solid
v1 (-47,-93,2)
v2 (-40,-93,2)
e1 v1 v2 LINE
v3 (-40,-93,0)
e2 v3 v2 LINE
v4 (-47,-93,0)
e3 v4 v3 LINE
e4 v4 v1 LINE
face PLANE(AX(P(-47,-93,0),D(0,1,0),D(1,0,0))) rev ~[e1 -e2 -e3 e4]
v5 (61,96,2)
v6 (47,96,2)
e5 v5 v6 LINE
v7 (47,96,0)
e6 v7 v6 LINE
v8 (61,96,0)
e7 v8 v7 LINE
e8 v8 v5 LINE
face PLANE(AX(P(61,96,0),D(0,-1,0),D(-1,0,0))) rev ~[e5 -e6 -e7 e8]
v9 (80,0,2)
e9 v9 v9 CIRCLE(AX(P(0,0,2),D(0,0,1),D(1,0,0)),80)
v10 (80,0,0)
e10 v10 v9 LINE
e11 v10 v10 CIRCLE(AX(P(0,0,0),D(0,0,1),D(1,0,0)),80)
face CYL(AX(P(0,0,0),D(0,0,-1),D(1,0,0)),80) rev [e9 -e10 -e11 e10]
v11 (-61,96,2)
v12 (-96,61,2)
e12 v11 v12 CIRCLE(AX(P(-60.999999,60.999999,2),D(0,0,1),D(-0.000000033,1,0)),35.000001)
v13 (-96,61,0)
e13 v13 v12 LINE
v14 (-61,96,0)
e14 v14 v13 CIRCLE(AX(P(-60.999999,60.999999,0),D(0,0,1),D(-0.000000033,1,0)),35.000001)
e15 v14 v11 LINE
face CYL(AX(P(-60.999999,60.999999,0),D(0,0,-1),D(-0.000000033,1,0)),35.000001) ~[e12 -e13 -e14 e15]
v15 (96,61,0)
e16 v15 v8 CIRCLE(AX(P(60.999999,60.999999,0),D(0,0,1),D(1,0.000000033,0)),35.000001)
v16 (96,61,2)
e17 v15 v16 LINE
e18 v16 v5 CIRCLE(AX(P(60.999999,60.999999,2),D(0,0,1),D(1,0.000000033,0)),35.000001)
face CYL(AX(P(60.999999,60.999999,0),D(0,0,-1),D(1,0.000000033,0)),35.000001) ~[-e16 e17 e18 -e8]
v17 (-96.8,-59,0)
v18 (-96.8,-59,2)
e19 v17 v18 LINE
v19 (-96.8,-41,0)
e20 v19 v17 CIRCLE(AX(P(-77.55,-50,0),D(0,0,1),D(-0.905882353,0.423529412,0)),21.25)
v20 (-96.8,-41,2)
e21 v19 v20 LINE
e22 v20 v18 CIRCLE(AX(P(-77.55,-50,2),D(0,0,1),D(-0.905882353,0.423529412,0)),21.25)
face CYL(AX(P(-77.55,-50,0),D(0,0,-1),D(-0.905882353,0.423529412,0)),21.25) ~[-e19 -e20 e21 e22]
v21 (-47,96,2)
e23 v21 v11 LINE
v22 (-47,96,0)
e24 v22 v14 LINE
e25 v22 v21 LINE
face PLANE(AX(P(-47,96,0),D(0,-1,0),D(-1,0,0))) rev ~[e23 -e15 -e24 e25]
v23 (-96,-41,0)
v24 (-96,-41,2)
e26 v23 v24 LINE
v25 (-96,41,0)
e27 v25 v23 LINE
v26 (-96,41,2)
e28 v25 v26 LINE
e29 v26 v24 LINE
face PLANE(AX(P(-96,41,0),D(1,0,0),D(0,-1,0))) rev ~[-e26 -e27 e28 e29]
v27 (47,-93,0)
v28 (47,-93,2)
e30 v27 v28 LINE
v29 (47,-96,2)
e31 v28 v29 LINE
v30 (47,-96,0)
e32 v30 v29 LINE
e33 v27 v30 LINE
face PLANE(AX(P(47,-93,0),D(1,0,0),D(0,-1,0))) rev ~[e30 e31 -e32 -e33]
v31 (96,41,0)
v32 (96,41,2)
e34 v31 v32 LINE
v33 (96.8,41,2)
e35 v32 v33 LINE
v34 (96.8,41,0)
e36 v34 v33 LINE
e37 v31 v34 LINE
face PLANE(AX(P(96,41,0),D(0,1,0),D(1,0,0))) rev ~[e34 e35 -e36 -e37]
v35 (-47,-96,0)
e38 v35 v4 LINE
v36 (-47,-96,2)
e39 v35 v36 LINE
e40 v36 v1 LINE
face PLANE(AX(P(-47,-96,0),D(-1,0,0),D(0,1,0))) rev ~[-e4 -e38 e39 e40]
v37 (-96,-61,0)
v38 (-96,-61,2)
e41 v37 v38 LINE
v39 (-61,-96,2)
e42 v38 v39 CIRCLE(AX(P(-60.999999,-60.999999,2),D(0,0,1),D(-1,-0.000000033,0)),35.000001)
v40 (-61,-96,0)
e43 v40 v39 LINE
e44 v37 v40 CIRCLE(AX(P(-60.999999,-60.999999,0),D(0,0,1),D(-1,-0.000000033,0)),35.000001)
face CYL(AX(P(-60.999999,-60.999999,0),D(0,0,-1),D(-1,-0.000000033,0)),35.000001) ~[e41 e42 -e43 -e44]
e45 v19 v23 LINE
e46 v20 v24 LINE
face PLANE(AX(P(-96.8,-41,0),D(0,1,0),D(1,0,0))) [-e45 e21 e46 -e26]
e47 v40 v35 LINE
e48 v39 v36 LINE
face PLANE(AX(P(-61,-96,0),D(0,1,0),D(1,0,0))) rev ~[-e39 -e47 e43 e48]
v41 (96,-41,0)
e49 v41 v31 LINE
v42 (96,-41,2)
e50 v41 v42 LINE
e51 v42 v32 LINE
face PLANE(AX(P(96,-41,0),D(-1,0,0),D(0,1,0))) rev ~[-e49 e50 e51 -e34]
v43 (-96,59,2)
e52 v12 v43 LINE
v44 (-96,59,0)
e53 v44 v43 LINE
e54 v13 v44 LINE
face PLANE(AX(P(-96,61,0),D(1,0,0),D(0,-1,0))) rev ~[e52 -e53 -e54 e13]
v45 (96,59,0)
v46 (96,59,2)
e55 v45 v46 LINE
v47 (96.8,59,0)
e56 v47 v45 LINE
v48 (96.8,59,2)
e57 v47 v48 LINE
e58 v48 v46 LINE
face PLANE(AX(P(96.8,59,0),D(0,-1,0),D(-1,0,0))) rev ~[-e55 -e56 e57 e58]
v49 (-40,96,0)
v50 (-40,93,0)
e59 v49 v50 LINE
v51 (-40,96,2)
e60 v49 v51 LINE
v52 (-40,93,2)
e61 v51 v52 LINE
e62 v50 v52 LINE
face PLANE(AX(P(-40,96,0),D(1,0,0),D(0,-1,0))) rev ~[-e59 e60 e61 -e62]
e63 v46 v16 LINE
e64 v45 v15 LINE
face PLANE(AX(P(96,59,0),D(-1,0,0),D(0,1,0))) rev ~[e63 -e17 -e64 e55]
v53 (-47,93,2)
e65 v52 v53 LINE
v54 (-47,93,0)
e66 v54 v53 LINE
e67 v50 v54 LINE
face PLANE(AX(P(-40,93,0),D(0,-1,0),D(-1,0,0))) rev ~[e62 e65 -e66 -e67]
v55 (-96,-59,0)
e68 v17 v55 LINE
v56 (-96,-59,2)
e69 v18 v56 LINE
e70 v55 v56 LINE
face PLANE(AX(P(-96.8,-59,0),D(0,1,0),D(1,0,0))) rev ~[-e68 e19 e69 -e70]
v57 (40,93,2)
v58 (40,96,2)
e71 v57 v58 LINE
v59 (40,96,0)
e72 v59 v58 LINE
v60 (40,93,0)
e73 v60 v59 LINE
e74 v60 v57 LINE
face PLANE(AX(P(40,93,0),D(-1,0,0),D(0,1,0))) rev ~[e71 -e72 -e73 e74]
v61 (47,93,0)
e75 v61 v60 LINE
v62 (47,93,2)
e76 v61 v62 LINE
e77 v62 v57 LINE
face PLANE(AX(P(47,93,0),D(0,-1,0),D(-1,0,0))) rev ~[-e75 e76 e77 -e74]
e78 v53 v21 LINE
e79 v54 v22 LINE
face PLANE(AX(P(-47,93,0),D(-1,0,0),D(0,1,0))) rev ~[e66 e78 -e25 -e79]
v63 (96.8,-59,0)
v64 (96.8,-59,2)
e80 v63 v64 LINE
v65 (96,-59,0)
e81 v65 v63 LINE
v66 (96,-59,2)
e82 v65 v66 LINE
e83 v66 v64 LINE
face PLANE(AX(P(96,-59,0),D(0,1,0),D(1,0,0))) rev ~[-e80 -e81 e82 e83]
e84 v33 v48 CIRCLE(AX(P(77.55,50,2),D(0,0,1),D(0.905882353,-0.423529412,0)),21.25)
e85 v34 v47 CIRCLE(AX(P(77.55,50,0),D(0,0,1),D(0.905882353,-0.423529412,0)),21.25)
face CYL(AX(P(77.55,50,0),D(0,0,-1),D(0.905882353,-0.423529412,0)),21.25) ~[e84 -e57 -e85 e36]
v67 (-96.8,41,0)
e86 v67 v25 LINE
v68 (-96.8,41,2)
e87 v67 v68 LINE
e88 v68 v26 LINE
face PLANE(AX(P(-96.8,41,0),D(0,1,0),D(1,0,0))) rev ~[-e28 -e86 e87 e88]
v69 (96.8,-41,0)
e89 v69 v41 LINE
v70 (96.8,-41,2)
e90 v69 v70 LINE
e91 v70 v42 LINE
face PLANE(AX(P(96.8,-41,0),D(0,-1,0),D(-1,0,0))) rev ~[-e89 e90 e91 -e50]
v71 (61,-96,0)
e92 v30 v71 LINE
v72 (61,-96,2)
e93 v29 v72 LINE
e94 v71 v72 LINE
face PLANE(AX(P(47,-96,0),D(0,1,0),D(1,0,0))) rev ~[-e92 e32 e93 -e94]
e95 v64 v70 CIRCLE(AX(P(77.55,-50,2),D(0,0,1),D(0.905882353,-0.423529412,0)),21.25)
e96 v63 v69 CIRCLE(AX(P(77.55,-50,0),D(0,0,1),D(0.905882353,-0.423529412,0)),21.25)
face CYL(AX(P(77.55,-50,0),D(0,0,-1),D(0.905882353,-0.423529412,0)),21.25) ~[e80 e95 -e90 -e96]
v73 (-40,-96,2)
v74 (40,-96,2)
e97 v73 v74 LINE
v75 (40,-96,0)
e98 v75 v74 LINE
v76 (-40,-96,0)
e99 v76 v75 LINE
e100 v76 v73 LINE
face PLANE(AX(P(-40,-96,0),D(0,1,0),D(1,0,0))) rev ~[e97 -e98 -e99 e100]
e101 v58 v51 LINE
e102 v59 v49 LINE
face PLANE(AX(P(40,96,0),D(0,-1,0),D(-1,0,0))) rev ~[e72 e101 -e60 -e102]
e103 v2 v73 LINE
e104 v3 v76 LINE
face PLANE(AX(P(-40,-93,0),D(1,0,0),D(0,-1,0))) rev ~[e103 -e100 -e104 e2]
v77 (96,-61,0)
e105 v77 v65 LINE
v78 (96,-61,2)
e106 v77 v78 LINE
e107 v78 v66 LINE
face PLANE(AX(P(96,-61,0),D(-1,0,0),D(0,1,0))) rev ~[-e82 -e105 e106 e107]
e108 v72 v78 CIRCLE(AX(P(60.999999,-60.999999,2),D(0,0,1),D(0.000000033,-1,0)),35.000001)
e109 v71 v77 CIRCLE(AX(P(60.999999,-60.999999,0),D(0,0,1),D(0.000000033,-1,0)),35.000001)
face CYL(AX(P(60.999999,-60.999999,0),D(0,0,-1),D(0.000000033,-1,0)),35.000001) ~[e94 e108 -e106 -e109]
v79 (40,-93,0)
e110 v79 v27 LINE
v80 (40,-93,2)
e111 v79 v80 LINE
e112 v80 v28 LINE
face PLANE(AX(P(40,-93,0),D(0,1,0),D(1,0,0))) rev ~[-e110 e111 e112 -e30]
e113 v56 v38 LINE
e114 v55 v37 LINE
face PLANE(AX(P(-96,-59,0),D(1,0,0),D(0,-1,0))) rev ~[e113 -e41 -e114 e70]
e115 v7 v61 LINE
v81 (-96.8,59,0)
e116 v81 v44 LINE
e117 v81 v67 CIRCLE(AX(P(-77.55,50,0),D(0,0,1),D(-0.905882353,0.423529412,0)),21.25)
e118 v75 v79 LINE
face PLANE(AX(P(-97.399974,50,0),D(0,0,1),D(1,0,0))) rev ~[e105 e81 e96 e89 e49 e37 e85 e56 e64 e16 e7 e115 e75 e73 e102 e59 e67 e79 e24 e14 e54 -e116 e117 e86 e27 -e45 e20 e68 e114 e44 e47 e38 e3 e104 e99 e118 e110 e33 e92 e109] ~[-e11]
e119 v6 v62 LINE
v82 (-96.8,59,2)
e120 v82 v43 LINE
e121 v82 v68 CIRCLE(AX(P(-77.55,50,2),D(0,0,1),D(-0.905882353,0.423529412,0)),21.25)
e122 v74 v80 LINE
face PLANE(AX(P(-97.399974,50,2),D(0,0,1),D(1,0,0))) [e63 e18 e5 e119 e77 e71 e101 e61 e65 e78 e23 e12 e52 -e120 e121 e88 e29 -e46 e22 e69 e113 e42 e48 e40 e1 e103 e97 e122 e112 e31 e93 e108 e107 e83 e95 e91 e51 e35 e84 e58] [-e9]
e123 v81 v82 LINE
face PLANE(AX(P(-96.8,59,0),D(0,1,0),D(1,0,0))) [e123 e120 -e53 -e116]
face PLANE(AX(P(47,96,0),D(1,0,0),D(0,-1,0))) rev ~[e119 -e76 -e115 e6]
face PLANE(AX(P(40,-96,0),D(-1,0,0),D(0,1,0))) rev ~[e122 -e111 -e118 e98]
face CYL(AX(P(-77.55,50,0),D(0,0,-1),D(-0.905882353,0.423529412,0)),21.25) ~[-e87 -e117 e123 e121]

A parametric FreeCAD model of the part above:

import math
import FreeCAD as App
import Part
import Sketcher

V = App.Vector

doc = App.newDocument("Part")
body = doc.addObject("PartDesign::Body", "Body")

# Sketch on XY plane
sketch1 = doc.addObject("Sketcher::SketchObject", "Sketch")
body.addObject(sketch1)
sketch1.AttachmentSupport = (doc.XY_Plane, [""])
sketch1.MapMode = "FlatFace"
sketch1.addGeometry(Part.ArcOfCircle(Part.Circle(V(-77.5, 50, 0), V(0, 0, 1), 21.2), math.radians(155), math.radians(205)), False)
sketch1.addGeometry(Part.LineSegment(V(-96.8, 41, 0), V(-96, 41, 0)), False)
sketch1.addGeometry(Part.LineSegment(V(-96, 41, 0), V(-96, -41, 0)), False)
sketch1.addGeometry(Part.LineSegment(V(-96, -41, 0), V(-96.8, -41, 0)), False)
sketch1.addGeometry(Part.ArcOfCircle(Part.Circle(V(-77.5, -50, 0), V(0, 0, 1), 21.2), math.radians(155), math.radians(205)), False)
sketch1.addGeometry(Part.LineSegment(V(-96.8, -59, 0), V(-96, -59, 0)), False)
sketch1.addGeometry(Part.LineSegment(V(-96, -59, 0), V(-96, -61, 0)), False)
sketch1.addGeometry(Part.ArcOfCircle(Part.Circle(V(-61, -61, 0), V(0, 0, 1), 35), math.radians(-180), math.radians(-90)), False)
sketch1.addGeometry(Part.LineSegment(V(-61, -96, 0), V(-47, -96, 0)), False)
sketch1.addGeometry(Part.LineSegment(V(-47, -96, 0), V(-47, -93, 0)), False)
sketch1.addGeometry(Part.LineSegment(V(-47, -93, 0), V(-40, -93, 0)), False)
sketch1.addGeometry(Part.LineSegment(V(-40, -93, 0), V(-40, -96, 0)), False)
sketch1.addGeometry(Part.LineSegment(V(-40, -96, 0), V(40, -96, 0)), False)
sketch1.addGeometry(Part.LineSegment(V(40, -96, 0), V(40, -93, 0)), False)
sketch1.addGeometry(Part.LineSegment(V(40, -93, 0), V(47, -93, 0)), False)
sketch1.addGeometry(Part.LineSegment(V(47, -93, 0), V(47, -96, 0)), False)
sketch1.addGeometry(Part.LineSegment(V(47, -96, 0), V(61, -96, 0)), False)
sketch1.addGeometry(Part.ArcOfCircle(Part.Circle(V(61, -61, 0), V(0, 0, 1), 35), math.radians(-90), math.radians(0)), False)
sketch1.addGeometry(Part.LineSegment(V(96, -61, 0), V(96, -59, 0)), False)
sketch1.addGeometry(Part.LineSegment(V(96, -59, 0), V(96.8, -59, 0)), False)
sketch1.addGeometry(Part.ArcOfCircle(Part.Circle(V(77.5, -50, 0), V(0, 0, 1), 21.2), math.radians(-25), math.radians(25)), False)
sketch1.addGeometry(Part.LineSegment(V(96.8, -41, 0), V(96, -41, 0)), False)
sketch1.addGeometry(Part.LineSegment(V(96, -41, 0), V(96, 41, 0)), False)
sketch1.addGeometry(Part.LineSegment(V(96, 41, 0), V(96.8, 41, 0)), False)
sketch1.addGeometry(Part.ArcOfCircle(Part.Circle(V(77.5, 50, 0), V(0, 0, 1), 21.2), math.radians(-25), math.radians(25)), False)
sketch1.addGeometry(Part.LineSegment(V(96.8, 59, 0), V(96, 59, 0)), False)
sketch1.addGeometry(Part.LineSegment(V(96, 59, 0), V(96, 61, 0)), False)
sketch1.addGeometry(Part.ArcOfCircle(Part.Circle(V(61, 61, 0), V(0, 0, 1), 35), math.radians(0), math.radians(90)), False)
sketch1.addGeometry(Part.LineSegment(V(61, 96, 0), V(47, 96, 0)), False)
sketch1.addGeometry(Part.LineSegment(V(47, 96, 0), V(47, 93, 0)), False)
sketch1.addGeometry(Part.LineSegment(V(47, 93, 0), V(40, 93, 0)), False)
sketch1.addGeometry(Part.LineSegment(V(40, 93, 0), V(40, 96, 0)), False)
sketch1.addGeometry(Part.LineSegment(V(40, 96, 0), V(-40, 96, 0)), False)
sketch1.addGeometry(Part.LineSegment(V(-40, 96, 0), V(-40, 93, 0)), False)
sketch1.addGeometry(Part.LineSegment(V(-40, 93, 0), V(-47, 93, 0)), False)
sketch1.addGeometry(Part.LineSegment(V(-47, 93, 0), V(-47, 96, 0)), False)
sketch1.addGeometry(Part.LineSegment(V(-47, 96, 0), V(-61, 96, 0)), False)
sketch1.addGeometry(Part.ArcOfCircle(Part.Circle(V(-61, 61, 0), V(0, 0, 1), 35), math.radians(90), math.radians(180)), False)
sketch1.addGeometry(Part.LineSegment(V(-96, 61, 0), V(-96, 59, 0)), False)
sketch1.addGeometry(Part.LineSegment(V(-96, 59, 0), V(-96.8, 59, 0)), False)
sketch1.addGeometry(Part.Circle(V(0, 0, 0), V(0, 0, 1), 80), False)
sketch1.addConstraint(Sketcher.Constraint("Coincident", 0, 2, 1, 1))
sketch1.addConstraint(Sketcher.Constraint("Coincident", 1, 2, 2, 1))
sketch1.addConstraint(Sketcher.Constraint("Coincident", 2, 2, 3, 1))
sketch1.addConstraint(Sketcher.Constraint("Coincident", 3, 2, 4, 1))
sketch1.addConstraint(Sketcher.Constraint("Coincident", 4, 2, 5, 1))
sketch1.addConstraint(Sketcher.Constraint("Coincident", 5, 2, 6, 1))
sketch1.addConstraint(Sketcher.Constraint("Tangent", 6, 2, 7, 1))
sketch1.addConstraint(Sketcher.Constraint("Tangent", 7, 2, 8, 1))
sketch1.addConstraint(Sketcher.Constraint("Coincident", 8, 2, 9, 1))
sketch1.addConstraint(Sketcher.Constraint("Coincident", 9, 2, 10, 1))
sketch1.addConstraint(Sketcher.Constraint("Coincident", 10, 2, 11, 1))
sketch1.addConstraint(Sketcher.Constraint("Coincident", 11, 2, 12, 1))
sketch1.addConstraint(Sketcher.Constraint("Coincident", 12, 2, 13, 1))
sketch1.addConstraint(Sketcher.Constraint("Coincident", 13, 2, 14, 1))
sketch1.addConstraint(Sketcher.Constraint("Coincident", 14, 2, 15, 1))
sketch1.addConstraint(Sketcher.Constraint("Coincident", 15, 2, 16, 1))
sketch1.addConstraint(Sketcher.Constraint("Tangent", 16, 2, 17, 1))
sketch1.addConstraint(Sketcher.Constraint("Tangent", 17, 2, 18, 1))
sketch1.addConstraint(Sketcher.Constraint("Coincident", 18, 2, 19, 1))
sketch1.addConstraint(Sketcher.Constraint("Coincident", 19, 2, 20, 1))
sketch1.addConstraint(Sketcher.Constraint("Coincident", 20, 2, 21, 1))
sketch1.addConstraint(Sketcher.Constraint("Coincident", 21, 2, 22, 1))
sketch1.addConstraint(Sketcher.Constraint("Coincident", 22, 2, 23, 1))
sketch1.addConstraint(Sketcher.Constraint("Coincident", 23, 2, 24, 1))
sketch1.addConstraint(Sketcher.Constraint("Coincident", 24, 2, 25, 1))
sketch1.addConstraint(Sketcher.Constraint("Coincident", 25, 2, 26, 1))
sketch1.addConstraint(Sketcher.Constraint("Tangent", 26, 2, 27, 1))
sketch1.addConstraint(Sketcher.Constraint("Tangent", 27, 2, 28, 1))
sketch1.addConstraint(Sketcher.Constraint("Coincident", 28, 2, 29, 1))
sketch1.addConstraint(Sketcher.Constraint("Coincident", 29, 2, 30, 1))
sketch1.addConstraint(Sketcher.Constraint("Coincident", 30, 2, 31, 1))
sketch1.addConstraint(Sketcher.Constraint("Coincident", 31, 2, 32, 1))
sketch1.addConstraint(Sketcher.Constraint("Coincident", 32, 2, 33, 1))
sketch1.addConstraint(Sketcher.Constraint("Coincident", 33, 2, 34, 1))
sketch1.addConstraint(Sketcher.Constraint("Coincident", 34, 2, 35, 1))
sketch1.addConstraint(Sketcher.Constraint("Coincident", 35, 2, 36, 1))
sketch1.addConstraint(Sketcher.Constraint("Tangent", 36, 2, 37, 1))
sketch1.addConstraint(Sketcher.Constraint("Tangent", 37, 2, 38, 1))
sketch1.addConstraint(Sketcher.Constraint("Coincident", 38, 2, 39, 1))
sketch1.addConstraint(Sketcher.Constraint("Coincident", 39, 2, 0, 1))
sketch1.addConstraint(Sketcher.Constraint("Horizontal", 1))
sketch1.addConstraint(Sketcher.Constraint("Vertical", 2))
sketch1.addConstraint(Sketcher.Constraint("Horizontal", 3))
sketch1.addConstraint(Sketcher.Constraint("Horizontal", 5))
sketch1.addConstraint(Sketcher.Constraint("Vertical", 6))
sketch1.addConstraint(Sketcher.Constraint("Horizontal", 8))
sketch1.addConstraint(Sketcher.Constraint("Vertical", 9))
sketch1.addConstraint(Sketcher.Constraint("Horizontal", 10))
sketch1.addConstraint(Sketcher.Constraint("Vertical", 11))
sketch1.addConstraint(Sketcher.Constraint("Horizontal", 12))
sketch1.addConstraint(Sketcher.Constraint("Vertical", 13))
sketch1.addConstraint(Sketcher.Constraint("Horizontal", 14))
sketch1.addConstraint(Sketcher.Constraint("Vertical", 15))
sketch1.addConstraint(Sketcher.Constraint("Horizontal", 16))
sketch1.addConstraint(Sketcher.Constraint("Vertical", 18))
sketch1.addConstraint(Sketcher.Constraint("Horizontal", 19))
sketch1.addConstraint(Sketcher.Constraint("Horizontal", 21))
sketch1.addConstraint(Sketcher.Constraint("Vertical", 22))
sketch1.addConstraint(Sketcher.Constraint("Horizontal", 23))
sketch1.addConstraint(Sketcher.Constraint("Horizontal", 25))
sketch1.addConstraint(Sketcher.Constraint("Vertical", 26))
sketch1.addConstraint(Sketcher.Constraint("Horizontal", 28))
sketch1.addConstraint(Sketcher.Constraint("Vertical", 29))
sketch1.addConstraint(Sketcher.Constraint("Horizontal", 30))
sketch1.addConstraint(Sketcher.Constraint("Vertical", 31))
sketch1.addConstraint(Sketcher.Constraint("Horizontal", 32))
sketch1.addConstraint(Sketcher.Constraint("Vertical", 33))
sketch1.addConstraint(Sketcher.Constraint("Horizontal", 34))
sketch1.addConstraint(Sketcher.Constraint("Vertical", 35))
sketch1.addConstraint(Sketcher.Constraint("Horizontal", 36))
sketch1.addConstraint(Sketcher.Constraint("Vertical", 38))
sketch1.addConstraint(Sketcher.Constraint("Horizontal", 39))
sketch1.addConstraint(Sketcher.Constraint("Coincident", 40, 3, -1, 1))
sketch1.addConstraint(Sketcher.Constraint("Equal", 0, 4))
sketch1.addConstraint(Sketcher.Constraint("Equal", 7, 17))
sketch1.addConstraint(Sketcher.Constraint("Equal", 4, 20))
sketch1.addConstraint(Sketcher.Constraint("Equal", 20, 24))
sketch1.addConstraint(Sketcher.Constraint("Equal", 17, 27))
sketch1.addConstraint(Sketcher.Constraint("Equal", 27, 37))
sketch1.addConstraint(Sketcher.Constraint("Symmetric", 0, 3, 20, 3, -1, 1))
sketch1.addConstraint(Sketcher.Constraint("Symmetric", 4, 3, 24, 3, -1, 1))
sketch1.addConstraint(Sketcher.Constraint("Symmetric", 7, 3, 27, 3, -1, 1))
sketch1.addConstraint(Sketcher.Constraint("Symmetric", 17, 3, 37, 3, -1, 1))
sketch1.addConstraint(Sketcher.Constraint("Symmetric", 1, 2, 21, 2, -1, 1))
sketch1.addConstraint(Sketcher.Constraint("Symmetric", 9, 2, 29, 2, -1, 1))
sketch1.addConstraint(Sketcher.Constraint("Symmetric", 11, 2, 31, 2, -1, 1))
sketch1.addConstraint(Sketcher.Constraint("Symmetric", 13, 2, 33, 2, -1, 1))
sketch1.addConstraint(Sketcher.Constraint("Symmetric", 7, 3, 17, 3, -2))
sketch1.addConstraint(Sketcher.Constraint("Symmetric", 4, 3, 20, 3, -2))
sketch1.addConstraint(Sketcher.Constraint("Symmetric", 10, 2, 13, 2, -2))
sketch1.addConstraint(Sketcher.Constraint("Horizontal", 8, 2, 11, 2))
sketch1.addConstraint(Sketcher.Constraint("Horizontal", 5, 2, 18, 2))
sketch1.addConstraint(Sketcher.Constraint("Horizontal", 3, 2, 20, 2))
sketch1.addConstraint(Sketcher.Constraint("Horizontal", 1, 2, 22, 2))
sketch1.addConstraint(Sketcher.Constraint("Horizontal", 25, 2, 38, 2))
sketch1.addConstraint(Sketcher.Constraint("Vertical", 3, 2, 4, 2))
sketch1.addConstraint(Sketcher.Constraint("Vertical", 2, 2, 5, 2))
sketch1.addConstraint(Sketcher.Constraint("Vertical", 23, 2, 24, 2))
sketch1.addConstraint(Sketcher.Constraint("Vertical", 15, 2, 28, 2))
sketch1.addConstraint(Sketcher.Constraint("Vertical", 9, 2, 34, 2))
sketch1.addConstraint(Sketcher.Constraint("Diameter", 40, 160.0))
sketch1.addConstraint(Sketcher.Constraint("Radius", 7, 35.000001))
sketch1.addConstraint(Sketcher.Constraint("DistanceX", 8, 1, 8, 2, 14.0))
sketch1.addConstraint(Sketcher.Constraint("DistanceX", 10, 1, 10, 2, 7.0))
sketch1.addConstraint(Sketcher.Constraint("DistanceX", 12, 1, 12, 2, 80.0))
sketch1.addConstraint(Sketcher.Constraint("DistanceY", 2, 2, 2, 1, 82.0))
sketch1.addConstraint(Sketcher.Constraint("DistanceY", 6, 2, 6, 1, 2.0))
sketch1.addConstraint(Sketcher.Constraint("DistanceY", 9, 1, 9, 2, 3.0))
sketch1.addConstraint(Sketcher.Constraint("Radius", 0, 21.25))
sketch1.addConstraint(Sketcher.Constraint("DistanceX", 1, 1, 1, 2, 0.8))
sketch1.addConstraint(Sketcher.Constraint("DistanceY", -1, 1, 0, 3, 50.0))
pad1 = doc.addObject("PartDesign::Pad", "Pad")
body.addObject(pad1)
pad1.Profile = sketch1
pad1.Length = 2

doc.recompute()
